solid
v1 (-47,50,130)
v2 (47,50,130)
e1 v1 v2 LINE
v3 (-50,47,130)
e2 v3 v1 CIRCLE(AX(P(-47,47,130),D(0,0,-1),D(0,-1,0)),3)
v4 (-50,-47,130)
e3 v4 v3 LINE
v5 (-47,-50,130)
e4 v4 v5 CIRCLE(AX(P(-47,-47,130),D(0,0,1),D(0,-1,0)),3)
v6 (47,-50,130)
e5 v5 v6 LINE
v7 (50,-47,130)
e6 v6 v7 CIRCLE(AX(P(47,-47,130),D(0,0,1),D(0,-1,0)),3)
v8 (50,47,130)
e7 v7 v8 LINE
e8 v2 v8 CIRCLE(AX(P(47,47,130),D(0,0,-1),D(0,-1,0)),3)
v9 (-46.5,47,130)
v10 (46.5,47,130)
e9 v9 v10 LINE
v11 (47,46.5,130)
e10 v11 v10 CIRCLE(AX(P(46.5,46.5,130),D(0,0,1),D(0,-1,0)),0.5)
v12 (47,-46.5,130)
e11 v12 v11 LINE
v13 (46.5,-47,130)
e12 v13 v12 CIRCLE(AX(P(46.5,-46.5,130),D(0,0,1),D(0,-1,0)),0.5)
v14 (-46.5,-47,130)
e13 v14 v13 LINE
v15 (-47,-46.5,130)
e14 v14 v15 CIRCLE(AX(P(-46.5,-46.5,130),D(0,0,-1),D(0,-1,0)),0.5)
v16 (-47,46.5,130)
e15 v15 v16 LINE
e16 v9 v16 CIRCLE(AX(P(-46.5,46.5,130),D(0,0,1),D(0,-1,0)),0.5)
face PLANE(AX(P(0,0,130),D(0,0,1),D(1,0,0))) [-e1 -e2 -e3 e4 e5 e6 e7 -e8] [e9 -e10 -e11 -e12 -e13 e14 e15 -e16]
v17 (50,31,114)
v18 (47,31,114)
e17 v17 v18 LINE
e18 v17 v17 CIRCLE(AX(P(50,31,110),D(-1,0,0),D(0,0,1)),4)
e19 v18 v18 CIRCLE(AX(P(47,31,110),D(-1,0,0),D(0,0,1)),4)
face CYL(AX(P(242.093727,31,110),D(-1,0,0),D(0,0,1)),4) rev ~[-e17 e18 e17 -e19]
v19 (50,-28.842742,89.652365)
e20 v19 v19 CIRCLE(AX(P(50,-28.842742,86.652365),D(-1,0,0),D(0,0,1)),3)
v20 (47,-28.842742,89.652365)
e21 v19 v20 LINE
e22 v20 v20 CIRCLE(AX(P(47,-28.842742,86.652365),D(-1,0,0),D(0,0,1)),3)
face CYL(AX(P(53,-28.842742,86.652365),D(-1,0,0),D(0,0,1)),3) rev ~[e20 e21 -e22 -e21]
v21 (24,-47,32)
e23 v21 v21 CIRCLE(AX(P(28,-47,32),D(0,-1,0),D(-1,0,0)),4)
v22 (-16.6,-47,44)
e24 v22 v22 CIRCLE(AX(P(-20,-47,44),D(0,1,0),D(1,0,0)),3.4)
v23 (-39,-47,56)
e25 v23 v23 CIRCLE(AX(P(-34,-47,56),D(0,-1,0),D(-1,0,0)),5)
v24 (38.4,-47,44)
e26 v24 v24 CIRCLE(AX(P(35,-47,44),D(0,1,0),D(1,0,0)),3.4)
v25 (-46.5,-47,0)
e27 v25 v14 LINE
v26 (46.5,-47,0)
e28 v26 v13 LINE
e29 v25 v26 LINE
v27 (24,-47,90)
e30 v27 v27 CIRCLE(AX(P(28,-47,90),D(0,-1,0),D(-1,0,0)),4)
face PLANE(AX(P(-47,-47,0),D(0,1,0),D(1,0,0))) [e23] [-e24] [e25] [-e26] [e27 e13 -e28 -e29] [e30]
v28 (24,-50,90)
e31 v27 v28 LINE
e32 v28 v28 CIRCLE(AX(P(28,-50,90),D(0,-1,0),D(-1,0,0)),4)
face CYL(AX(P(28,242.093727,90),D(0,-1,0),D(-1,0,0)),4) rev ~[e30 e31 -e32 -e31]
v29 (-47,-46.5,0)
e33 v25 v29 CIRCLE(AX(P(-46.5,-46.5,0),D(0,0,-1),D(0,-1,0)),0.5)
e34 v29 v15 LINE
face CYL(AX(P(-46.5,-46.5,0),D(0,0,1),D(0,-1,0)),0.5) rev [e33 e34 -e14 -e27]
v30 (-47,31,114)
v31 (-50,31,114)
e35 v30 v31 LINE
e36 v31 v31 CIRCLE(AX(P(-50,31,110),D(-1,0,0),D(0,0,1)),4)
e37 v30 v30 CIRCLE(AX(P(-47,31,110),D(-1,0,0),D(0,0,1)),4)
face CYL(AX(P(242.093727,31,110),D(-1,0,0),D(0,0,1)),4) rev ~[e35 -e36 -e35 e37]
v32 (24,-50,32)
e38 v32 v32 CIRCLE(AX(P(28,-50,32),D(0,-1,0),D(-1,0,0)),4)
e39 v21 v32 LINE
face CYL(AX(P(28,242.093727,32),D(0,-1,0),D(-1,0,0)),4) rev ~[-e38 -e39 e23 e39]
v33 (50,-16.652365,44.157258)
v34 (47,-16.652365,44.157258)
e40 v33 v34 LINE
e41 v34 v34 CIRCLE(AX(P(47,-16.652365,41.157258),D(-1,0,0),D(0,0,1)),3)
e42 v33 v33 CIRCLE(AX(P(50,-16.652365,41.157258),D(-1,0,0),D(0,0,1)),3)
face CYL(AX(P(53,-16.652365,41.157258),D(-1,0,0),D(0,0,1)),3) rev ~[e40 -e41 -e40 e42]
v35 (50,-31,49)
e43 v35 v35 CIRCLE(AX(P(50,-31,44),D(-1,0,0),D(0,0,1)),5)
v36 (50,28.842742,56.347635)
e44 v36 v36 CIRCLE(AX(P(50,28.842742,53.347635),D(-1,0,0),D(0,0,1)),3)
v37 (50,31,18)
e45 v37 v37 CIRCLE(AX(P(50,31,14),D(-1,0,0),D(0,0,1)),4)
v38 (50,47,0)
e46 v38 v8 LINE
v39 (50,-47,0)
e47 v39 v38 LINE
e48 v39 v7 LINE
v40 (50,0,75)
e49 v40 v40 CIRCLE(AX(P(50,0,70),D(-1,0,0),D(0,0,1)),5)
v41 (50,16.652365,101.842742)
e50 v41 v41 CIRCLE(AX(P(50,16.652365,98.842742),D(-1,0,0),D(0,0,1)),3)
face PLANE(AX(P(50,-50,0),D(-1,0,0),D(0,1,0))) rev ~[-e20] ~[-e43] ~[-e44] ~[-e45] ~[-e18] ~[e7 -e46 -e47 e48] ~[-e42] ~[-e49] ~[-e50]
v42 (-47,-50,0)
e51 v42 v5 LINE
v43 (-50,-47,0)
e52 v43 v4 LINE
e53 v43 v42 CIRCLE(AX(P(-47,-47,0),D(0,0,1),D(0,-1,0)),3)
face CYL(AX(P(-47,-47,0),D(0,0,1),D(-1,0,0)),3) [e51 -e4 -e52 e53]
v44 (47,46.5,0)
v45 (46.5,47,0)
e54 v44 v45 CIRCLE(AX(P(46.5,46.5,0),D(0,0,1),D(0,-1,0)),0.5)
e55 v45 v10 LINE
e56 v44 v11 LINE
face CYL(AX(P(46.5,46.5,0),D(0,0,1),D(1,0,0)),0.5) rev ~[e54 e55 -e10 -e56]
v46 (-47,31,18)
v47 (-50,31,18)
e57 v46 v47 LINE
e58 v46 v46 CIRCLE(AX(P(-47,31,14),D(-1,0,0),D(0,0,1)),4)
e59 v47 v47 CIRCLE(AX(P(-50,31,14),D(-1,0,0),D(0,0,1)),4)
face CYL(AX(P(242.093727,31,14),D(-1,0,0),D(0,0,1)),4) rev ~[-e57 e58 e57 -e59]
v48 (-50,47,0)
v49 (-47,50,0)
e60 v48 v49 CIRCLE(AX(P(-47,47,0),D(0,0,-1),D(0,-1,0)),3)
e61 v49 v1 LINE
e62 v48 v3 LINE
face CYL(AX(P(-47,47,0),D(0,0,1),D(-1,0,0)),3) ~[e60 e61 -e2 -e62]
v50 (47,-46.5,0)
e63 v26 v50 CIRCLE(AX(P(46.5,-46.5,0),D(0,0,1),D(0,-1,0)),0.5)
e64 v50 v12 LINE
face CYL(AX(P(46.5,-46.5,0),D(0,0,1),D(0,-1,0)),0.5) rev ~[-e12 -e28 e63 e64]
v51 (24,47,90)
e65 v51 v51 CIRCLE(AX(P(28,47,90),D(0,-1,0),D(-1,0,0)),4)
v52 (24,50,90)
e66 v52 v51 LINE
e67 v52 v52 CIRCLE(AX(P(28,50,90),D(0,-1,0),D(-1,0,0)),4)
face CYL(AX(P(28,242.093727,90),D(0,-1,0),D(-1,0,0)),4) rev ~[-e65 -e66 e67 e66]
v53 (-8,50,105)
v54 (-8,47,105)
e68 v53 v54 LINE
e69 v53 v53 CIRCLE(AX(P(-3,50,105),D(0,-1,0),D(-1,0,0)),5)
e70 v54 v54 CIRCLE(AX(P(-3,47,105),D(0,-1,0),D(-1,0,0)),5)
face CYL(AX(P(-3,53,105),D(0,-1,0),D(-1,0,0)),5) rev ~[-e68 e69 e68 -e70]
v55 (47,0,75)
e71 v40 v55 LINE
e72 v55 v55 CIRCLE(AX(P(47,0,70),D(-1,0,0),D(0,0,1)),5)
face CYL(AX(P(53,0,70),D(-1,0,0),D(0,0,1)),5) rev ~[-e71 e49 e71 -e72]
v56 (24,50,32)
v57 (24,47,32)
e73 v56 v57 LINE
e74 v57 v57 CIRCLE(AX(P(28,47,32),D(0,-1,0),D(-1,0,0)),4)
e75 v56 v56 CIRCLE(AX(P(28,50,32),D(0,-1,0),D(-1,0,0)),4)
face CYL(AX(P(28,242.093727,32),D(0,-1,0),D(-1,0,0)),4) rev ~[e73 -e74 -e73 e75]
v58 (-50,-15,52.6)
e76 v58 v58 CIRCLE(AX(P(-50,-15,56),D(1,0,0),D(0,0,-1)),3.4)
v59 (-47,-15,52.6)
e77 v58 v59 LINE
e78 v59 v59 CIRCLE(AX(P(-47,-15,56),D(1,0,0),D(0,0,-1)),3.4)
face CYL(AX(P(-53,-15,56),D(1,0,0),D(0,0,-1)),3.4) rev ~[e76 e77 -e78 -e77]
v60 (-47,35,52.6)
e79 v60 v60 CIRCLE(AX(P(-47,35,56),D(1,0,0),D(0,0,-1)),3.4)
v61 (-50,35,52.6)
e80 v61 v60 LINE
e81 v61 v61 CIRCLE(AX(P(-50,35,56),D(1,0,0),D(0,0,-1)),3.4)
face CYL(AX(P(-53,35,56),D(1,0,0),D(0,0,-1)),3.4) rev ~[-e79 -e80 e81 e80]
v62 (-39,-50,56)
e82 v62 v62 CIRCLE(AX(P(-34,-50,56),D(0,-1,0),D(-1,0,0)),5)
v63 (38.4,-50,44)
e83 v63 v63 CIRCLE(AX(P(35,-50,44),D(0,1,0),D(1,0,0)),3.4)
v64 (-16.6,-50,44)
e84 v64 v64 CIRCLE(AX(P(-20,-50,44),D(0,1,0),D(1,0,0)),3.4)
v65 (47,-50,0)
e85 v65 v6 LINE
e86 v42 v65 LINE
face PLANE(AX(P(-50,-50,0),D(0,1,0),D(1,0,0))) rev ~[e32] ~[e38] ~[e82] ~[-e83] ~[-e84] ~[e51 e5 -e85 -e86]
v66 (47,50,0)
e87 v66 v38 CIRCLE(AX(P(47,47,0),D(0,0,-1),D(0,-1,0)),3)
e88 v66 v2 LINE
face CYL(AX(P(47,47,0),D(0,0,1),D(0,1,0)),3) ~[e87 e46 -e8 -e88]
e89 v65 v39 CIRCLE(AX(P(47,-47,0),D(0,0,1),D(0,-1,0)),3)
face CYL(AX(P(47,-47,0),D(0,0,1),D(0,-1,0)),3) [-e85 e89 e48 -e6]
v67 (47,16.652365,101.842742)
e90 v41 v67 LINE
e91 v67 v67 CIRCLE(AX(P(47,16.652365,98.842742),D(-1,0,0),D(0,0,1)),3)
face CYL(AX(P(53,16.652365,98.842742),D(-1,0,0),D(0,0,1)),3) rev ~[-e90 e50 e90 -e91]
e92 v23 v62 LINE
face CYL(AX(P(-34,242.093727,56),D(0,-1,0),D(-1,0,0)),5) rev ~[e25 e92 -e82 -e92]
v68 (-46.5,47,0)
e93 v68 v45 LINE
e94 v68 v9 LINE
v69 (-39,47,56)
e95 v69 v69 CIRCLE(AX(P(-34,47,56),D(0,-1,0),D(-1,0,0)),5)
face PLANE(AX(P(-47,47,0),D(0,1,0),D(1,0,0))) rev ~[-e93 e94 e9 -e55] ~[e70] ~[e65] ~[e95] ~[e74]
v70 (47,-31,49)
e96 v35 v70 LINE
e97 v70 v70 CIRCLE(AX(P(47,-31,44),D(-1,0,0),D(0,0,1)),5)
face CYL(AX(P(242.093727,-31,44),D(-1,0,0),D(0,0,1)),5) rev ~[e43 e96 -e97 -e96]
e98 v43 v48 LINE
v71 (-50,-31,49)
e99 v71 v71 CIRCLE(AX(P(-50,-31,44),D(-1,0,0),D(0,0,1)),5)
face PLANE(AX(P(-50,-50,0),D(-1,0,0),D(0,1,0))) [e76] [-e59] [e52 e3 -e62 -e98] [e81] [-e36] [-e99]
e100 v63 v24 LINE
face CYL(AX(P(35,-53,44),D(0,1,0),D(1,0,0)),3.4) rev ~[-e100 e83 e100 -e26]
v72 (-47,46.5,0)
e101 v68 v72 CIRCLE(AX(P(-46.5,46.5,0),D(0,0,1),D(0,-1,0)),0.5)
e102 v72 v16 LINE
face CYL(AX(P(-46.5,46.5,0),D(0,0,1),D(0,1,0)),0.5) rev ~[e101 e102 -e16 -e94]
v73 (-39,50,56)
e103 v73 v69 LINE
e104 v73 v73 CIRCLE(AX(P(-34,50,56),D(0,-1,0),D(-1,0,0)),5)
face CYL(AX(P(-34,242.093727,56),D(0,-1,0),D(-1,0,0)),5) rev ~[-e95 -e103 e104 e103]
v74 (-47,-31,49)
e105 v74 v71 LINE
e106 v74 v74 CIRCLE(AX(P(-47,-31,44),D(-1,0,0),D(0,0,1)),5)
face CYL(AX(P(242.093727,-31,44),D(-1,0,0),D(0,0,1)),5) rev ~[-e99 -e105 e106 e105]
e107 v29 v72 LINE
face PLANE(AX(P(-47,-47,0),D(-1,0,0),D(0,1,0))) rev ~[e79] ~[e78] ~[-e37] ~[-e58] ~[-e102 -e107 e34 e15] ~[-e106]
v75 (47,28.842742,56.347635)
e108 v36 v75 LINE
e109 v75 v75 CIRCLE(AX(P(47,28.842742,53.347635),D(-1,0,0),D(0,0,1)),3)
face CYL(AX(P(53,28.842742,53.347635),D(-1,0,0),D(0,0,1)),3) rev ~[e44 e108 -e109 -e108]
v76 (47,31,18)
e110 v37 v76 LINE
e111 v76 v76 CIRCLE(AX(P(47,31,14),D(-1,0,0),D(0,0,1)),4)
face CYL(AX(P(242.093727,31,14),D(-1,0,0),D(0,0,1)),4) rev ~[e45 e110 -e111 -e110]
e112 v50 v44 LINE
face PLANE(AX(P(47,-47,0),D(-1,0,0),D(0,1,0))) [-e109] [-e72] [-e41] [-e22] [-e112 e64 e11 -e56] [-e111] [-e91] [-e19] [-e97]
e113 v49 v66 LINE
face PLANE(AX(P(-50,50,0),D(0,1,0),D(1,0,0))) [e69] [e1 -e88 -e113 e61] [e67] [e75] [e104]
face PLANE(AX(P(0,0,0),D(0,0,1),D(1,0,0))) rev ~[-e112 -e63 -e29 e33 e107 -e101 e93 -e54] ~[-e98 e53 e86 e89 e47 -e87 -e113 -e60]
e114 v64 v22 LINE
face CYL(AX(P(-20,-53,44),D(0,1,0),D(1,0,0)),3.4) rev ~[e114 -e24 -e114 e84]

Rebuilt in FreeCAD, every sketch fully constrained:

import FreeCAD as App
import Part
import Sketcher

V = App.Vector
Q = App.Units.Quantity


def edges_at(feature, points):
    """Names of the edges that pass closest to the given points."""
    edges = feature.Shape.Edges
    near = lambda p: min(range(len(edges)), key=lambda i: edges[i].distToShape(Part.Vertex(*p))[0])
    return sorted({f"Edge{near(p) + 1}" for p in points})

doc = App.newDocument("Part")
body = doc.addObject("PartDesign::Body", "Body")

sketch1 = doc.addObject("Sketcher::SketchObject", "Sketch")
body.addObject(sketch1)
sketch1.AttachmentSupport = (doc.XY_Plane, [""])
sketch1.MapMode = "FlatFace"
sketch1.addGeometry(Part.LineSegment(V(-50, 50, 0), V(-50, -50, 0)), False)
sketch1.addGeometry(Part.LineSegment(V(-50, -50, 0), V(50, -50, 0)), False)
sketch1.addGeometry(Part.LineSegment(V(50, -50, 0), V(50, 50, 0)), False)
sketch1.addGeometry(Part.LineSegment(V(50, 50, 0), V(-50, 50, 0)), False)
sketch1.addGeometry(Part.LineSegment(V(47, -47, 0), V(-47, -47, 0)), False)
sketch1.addGeometry(Part.LineSegment(V(-47, -47, 0), V(-47, 47, 0)), False)
sketch1.addGeometry(Part.LineSegment(V(-47, 47, 0), V(47, 47, 0)), False)
sketch1.addGeometry(Part.LineSegment(V(47, 47, 0), V(47, -47, 0)), False)
sketch1.addConstraint(Sketcher.Constraint("Coincident", 0, 2, 1, 1))
sketch1.addConstraint(Sketcher.Constraint("Coincident", 1, 2, 2, 1))
sketch1.addConstraint(Sketcher.Constraint("Coincident", 2, 2, 3, 1))
sketch1.addConstraint(Sketcher.Constraint("Coincident", 3, 2, 0, 1))
sketch1.addConstraint(Sketcher.Constraint("Coincident", 4, 2, 5, 1))
sketch1.addConstraint(Sketcher.Constraint("Coincident", 5, 2, 6, 1))
sketch1.addConstraint(Sketcher.Constraint("Coincident", 6, 2, 7, 1))
sketch1.addConstraint(Sketcher.Constraint("Coincident", 7, 2, 4, 1))
sketch1.addConstraint(Sketcher.Constraint("Vertical", 0))
sketch1.addConstraint(Sketcher.Constraint("Horizontal", 1))
sketch1.addConstraint(Sketcher.Constraint("Vertical", 2))
sketch1.addConstraint(Sketcher.Constraint("Horizontal", 3))
sketch1.addConstraint(Sketcher.Constraint("Horizontal", 4))
sketch1.addConstraint(Sketcher.Constraint("Vertical", 5))
sketch1.addConstraint(Sketcher.Constraint("Horizontal", 6))
sketch1.addConstraint(Sketcher.Constraint("Vertical", 7))
sketch1.addConstraint(Sketcher.Constraint("Symmetric", 0, 2, 2, 2, -1, 1))
sketch1.addConstraint(Sketcher.Constraint("Symmetric", 4, 2, 6, 2, -1, 1))
sketch1.addConstraint(Sketcher.Constraint("Equal", 3, 0))
sketch1.addConstraint(Sketcher.Constraint("Equal", 6, 5))
sketch1.addConstraint(Sketcher.Constraint("DistanceX", 1, 1, 1, 2, Q("100 mm")))
sketch1.addConstraint(Sketcher.Constraint("DistanceX", 4, 2, 4, 1, Q("94 mm")))
pad1 = doc.addObject("PartDesign::Pad", "Pad")
body.addObject(pad1)
pad1.Profile = sketch1
pad1.Length = 130
doc.recompute()

fillet = doc.addObject("PartDesign::Fillet", "Fillet")
body.addObject(fillet)
fillet.Base = (pad1, edges_at(pad1, [
    (47, -47, 65),
    (47, 47, 65),
    (-47, 47, 65),
    (-47, -47, 65),
]))
fillet.Radius = 0.5
doc.recompute()

fillet2 = doc.addObject("PartDesign::Fillet", "Fillet001")
body.addObject(fillet2)
fillet2.Base = (fillet, edges_at(fillet, [
    (50, -50, 65),
    (-50, -50, 65),
    (-50, 50, 65),
    (50, 50, 65),
]))
fillet2.Radius = 3

sketch2 = doc.addObject("Sketcher::SketchObject", "Sketch001")
body.addObject(sketch2)
sketch2.AttachmentSupport = (doc.XZ_Plane, [""])
sketch2.MapMode = "FlatFace"
sketch2.AttachmentOffset = App.Placement(V(0, 0, -50), App.Rotation())
sketch2.addGeometry(Part.Circle(V(28, 32, 0), V(0, 0, 1), 4), False)
sketch2.addGeometry(Part.Circle(V(28, 90, 0), V(0, 0, 1), 4), False)
sketch2.addConstraint(Sketcher.Constraint("Equal", 0, 1))
sketch2.addConstraint(Sketcher.Constraint("Vertical", 0, 3, 1, 3))
sketch2.addConstraint(Sketcher.Constraint("Diameter", 0, Q("8 mm")))
sketch2.addConstraint(Sketcher.Constraint("DistanceX", -1, 1, 0, 3, Q("28 mm")))
sketch2.addConstraint(Sketcher.Constraint("DistanceY", -1, 1, 0, 3, Q("32 mm")))
sketch2.addConstraint(Sketcher.Constraint("DistanceY", -1, 1, 1, 3, Q("90 mm")))
doc.recompute()
hole = doc.addObject("PartDesign::Hole", "Hole")
body.addObject(hole)
hole.Profile = sketch2
hole.ThreadType = "None"
hole.Diameter = 8
hole.DepthType = "ThroughAll"
hole.Reversed = True

sketch3 = doc.addObject("Sketcher::SketchObject", "Sketch002")
body.addObject(sketch3)
sketch3.AttachmentSupport = (doc.YZ_Plane, [""])
sketch3.MapMode = "FlatFace"
sketch3.AttachmentOffset = App.Placement(V(0, 0, 50), App.Rotation())
sketch3.addGeometry(Part.Circle(V(31, 14, 0), V(0, 0, 1), 4), False)
sketch3.addGeometry(Part.Circle(V(31, 110, 0), V(0, 0, 1), 4), False)
sketch3.addConstraint(Sketcher.Constraint("Equal", 0, 1))
sketch3.addConstraint(Sketcher.Constraint("Vertical", 0, 3, 1, 3))
sketch3.addConstraint(Sketcher.Constraint("Diameter", 0, Q("8 mm")))
sketch3.addConstraint(Sketcher.Constraint("DistanceX", -1, 1, 0, 3, Q("31 mm")))
sketch3.addConstraint(Sketcher.Constraint("DistanceY", -1, 1, 0, 3, Q("14 mm")))
sketch3.addConstraint(Sketcher.Constraint("DistanceY", -1, 1, 1, 3, Q("110 mm")))
doc.recompute()
hole2 = doc.addObject("PartDesign::Hole", "Hole001")
body.addObject(hole2)
hole2.Profile = sketch3
hole2.ThreadType = "None"
hole2.Diameter = 8
hole2.DepthType = "ThroughAll"

sketch4 = doc.addObject("Sketcher::SketchObject", "Sketch003")
body.addObject(sketch4)
sketch4.AttachmentSupport = (doc.XZ_Plane, [""])
sketch4.MapMode = "FlatFace"
sketch4.AttachmentOffset = App.Placement(V(0, 0, -50), App.Rotation())
sketch4.addGeometry(Part.Circle(V(-34, 56, 0), V(0, 0, 1), 5), False)
sketch4.addConstraint(Sketcher.Constraint("Diameter", 0, Q("10 mm")))
sketch4.addConstraint(Sketcher.Constraint("DistanceX", 0, 3, -1, 1, Q("34 mm")))
sketch4.addConstraint(Sketcher.Constraint("DistanceY", -1, 1, 0, 3, Q("56 mm")))
doc.recompute()
hole3 = doc.addObject("PartDesign::Hole", "Hole002")
body.addObject(hole3)
hole3.Profile = sketch4
hole3.ThreadType = "None"
hole3.Diameter = 10
hole3.DepthType = "ThroughAll"
hole3.Reversed = True

sketch5 = doc.addObject("Sketcher::SketchObject", "Sketch004")
body.addObject(sketch5)
sketch5.AttachmentSupport = (doc.YZ_Plane, [""])
sketch5.MapMode = "FlatFace"
sketch5.AttachmentOffset = App.Placement(V(0, 0, 50), App.Rotation())
sketch5.addGeometry(Part.Circle(V(-31, 44, 0), V(0, 0, 1), 5), False)
sketch5.addConstraint(Sketcher.Constraint("Diameter", 0, Q("10 mm")))
sketch5.addConstraint(Sketcher.Constraint("DistanceX", 0, 3, -1, 1, Q("31 mm")))
sketch5.addConstraint(Sketcher.Constraint("DistanceY", -1, 1, 0, 3, Q("44 mm")))
doc.recompute()
hole4 = doc.addObject("PartDesign::Hole", "Hole003")
body.addObject(hole4)
hole4.Profile = sketch5
hole4.ThreadType = "None"
hole4.Diameter = 10
hole4.DepthType = "ThroughAll"

sketch6 = doc.addObject("Sketcher::SketchObject", "Sketch005")
body.addObject(sketch6)
sketch6.AttachmentSupport = (doc.YZ_Plane, [""])
sketch6.MapMode = "FlatFace"
sketch6.AttachmentOffset = App.Placement(V(0, 0, -50), App.Rotation())
sketch6.addGeometry(Part.Circle(V(-15, 56, 0), V(0, 0, 1), 3.4), False)
sketch6.addGeometry(Part.Circle(V(35, 56, 0), V(0, 0, 1), 3.4), False)
sketch6.addConstraint(Sketcher.Constraint("Equal", 0, 1))
sketch6.addConstraint(Sketcher.Constraint("Horizontal", 0, 3, 1, 3))
sketch6.addConstraint(Sketcher.Constraint("Diameter", 0, Q("6.8 mm")))
sketch6.addConstraint(Sketcher.Constraint("DistanceX", 0, 3, -1, 1, Q("15 mm")))
sketch6.addConstraint(Sketcher.Constraint("DistanceY", -1, 1, 0, 3, Q("56 mm")))
sketch6.addConstraint(Sketcher.Constraint("DistanceX", -1, 1, 1, 3, Q("35 mm")))
doc.recompute()
hole5 = doc.addObject("PartDesign::Hole", "Hole004")
body.addObject(hole5)
hole5.Profile = sketch6
hole5.ThreadType = "None"
hole5.Diameter = 6.8
hole5.DepthType = "Dimension"
hole5.Depth = 3
hole5.DrillPoint = "Flat"
hole5.Reversed = True

sketch7 = doc.addObject("Sketcher::SketchObject", "Sketch006")
body.addObject(sketch7)
sketch7.AttachmentSupport = (doc.XZ_Plane, [""])
sketch7.MapMode = "FlatFace"
sketch7.AttachmentOffset = App.Placement(V(0, 0, 50), App.Rotation())
sketch7.addGeometry(Part.Circle(V(-20, 44, 0), V(0, 0, 1), 3.4), False)
sketch7.addGeometry(Part.Circle(V(35, 44, 0), V(0, 0, 1), 3.4), False)
sketch7.addConstraint(Sketcher.Constraint("Equal", 0, 1))
sketch7.addConstraint(Sketcher.Constraint("Horizontal", 0, 3, 1, 3))
sketch7.addConstraint(Sketcher.Constraint("Diameter", 0, Q("6.8 mm")))
sketch7.addConstraint(Sketcher.Constraint("DistanceX", 0, 3, -1, 1, Q("20 mm")))
sketch7.addConstraint(Sketcher.Constraint("DistanceY", -1, 1, 0, 3, Q("44 mm")))
sketch7.addConstraint(Sketcher.Constraint("DistanceX", -1, 1, 1, 3, Q("35 mm")))
doc.recompute()
hole6 = doc.addObject("PartDesign::Hole", "Hole005")
body.addObject(hole6)
hole6.Profile = sketch7
hole6.ThreadType = "None"
hole6.Diameter = 6.8
hole6.DepthType = "Dimension"
hole6.Depth = 3
hole6.DrillPoint = "Flat"

sketch8 = doc.addObject("Sketcher::SketchObject", "Sketch007")
body.addObject(sketch8)
sketch8.AttachmentSupport = (doc.YZ_Plane, [""])
sketch8.MapMode = "FlatFace"
sketch8.AttachmentOffset = App.Placement(V(0, 0, 50), App.Rotation())
sketch8.addGeometry(Part.Circle(V(0, 70, 0), V(0, 0, 1), 5), False)
sketch8.addConstraint(Sketcher.Constraint("PointOnObject", 0, 3, -2))
sketch8.addConstraint(Sketcher.Constraint("Diameter", 0, Q("10 mm")))
sketch8.addConstraint(Sketcher.Constraint("DistanceY", -1, 1, 0, 3, Q("70 mm")))
doc.recompute()
hole7 = doc.addObject("PartDesign::Hole", "Hole006")
body.addObject(hole7)
hole7.Profile = sketch8
hole7.ThreadType = "None"
hole7.Diameter = 10
hole7.DepthType = "Dimension"
hole7.Depth = 3
hole7.DrillPoint = "Flat"

sketch9 = doc.addObject("Sketcher::SketchObject", "Sketch008")
body.addObject(sketch9)
sketch9.AttachmentSupport = (doc.YZ_Plane, [""])
sketch9.MapMode = "FlatFace"
sketch9.AttachmentOffset = App.Placement(V(0, 0, 50), App.Rotation())
sketch9.addGeometry(Part.Circle(V(-16.652365, 41.157258, 0), V(0, 0, 1), 3), False)
sketch9.addGeometry(Part.Circle(V(28.842742, 53.347635, 0), V(0, 0, 1), 3), False)
sketch9.addGeometry(Part.Circle(V(16.652365, 98.842742, 0), V(0, 0, 1), 3), False)
sketch9.addGeometry(Part.Circle(V(-28.842742, 86.652365, 0), V(0, 0, 1), 3), False)
sketch9.addConstraint(Sketcher.Constraint("Equal", 0, 1))
sketch9.addConstraint(Sketcher.Constraint("Equal", 1, 2))
sketch9.addConstraint(Sketcher.Constraint("Equal", 2, 3))
sketch9.addConstraint(Sketcher.Constraint("Diameter", 0, Q("6 mm")))
sketch9.addConstraint(Sketcher.Constraint("DistanceY", -1, 1, 0, 3, Q("41.157258 mm")))
sketch9.addConstraint(Sketcher.Constraint("DistanceX", -1, 1, 1, 3, Q("28.842742 mm")))
sketch9.addConstraint(Sketcher.Constraint("DistanceY", -1, 1, 2, 3, Q("98.842742 mm")))
sketch9.addConstraint(Sketcher.Constraint("DistanceX", 3, 3, -1, 1, Q("28.842742 mm")))
sketch9.addConstraint(Sketcher.Constraint("DistanceX", 0, 3, 2, 3, Q("33.304729 mm")))
sketch9.addConstraint(Sketcher.Constraint("DistanceY", 1, 3, 3, 3, Q("33.304729 mm")))
sketch9.addConstraint(Sketcher.Constraint("DistanceX", 0, 3, -1, 1, Q("16.652365 mm")))
sketch9.addConstraint(Sketcher.Constraint("DistanceY", -1, 1, 1, 3, Q("53.347635 mm")))
doc.recompute()
hole8 = doc.addObject("PartDesign::Hole", "Hole007")
body.addObject(hole8)
hole8.Profile = sketch9
hole8.ThreadType = "None"
hole8.Diameter = 6
hole8.DepthType = "Dimension"
hole8.Depth = 3
hole8.DrillPoint = "Flat"

sketch10 = doc.addObject("Sketcher::SketchObject", "Sketch009")
body.addObject(sketch10)
sketch10.AttachmentSupport = (doc.XZ_Plane, [""])
sketch10.MapMode = "FlatFace"
sketch10.AttachmentOffset = App.Placement(V(0, 0, -50), App.Rotation())
sketch10.addGeometry(Part.Circle(V(-3, 105, 0), V(0, 0, 1), 5), False)
sketch10.addConstraint(Sketcher.Constraint("Diameter", 0, Q("10 mm")))
sketch10.addConstraint(Sketcher.Constraint("DistanceX", 0, 3, -1, 1, Q("3 mm")))
sketch10.addConstraint(Sketcher.Constraint("DistanceY", -1, 1, 0, 3, Q("105 mm")))
doc.recompute()
hole9 = doc.addObject("PartDesign::Hole", "Hole008")
body.addObject(hole9)
hole9.Profile = sketch10
hole9.ThreadType = "None"
hole9.Diameter = 10
hole9.DepthType = "Dimension"
hole9.Depth = 3
hole9.DrillPoint = "Flat"
hole9.Reversed = True

doc.recompute()
